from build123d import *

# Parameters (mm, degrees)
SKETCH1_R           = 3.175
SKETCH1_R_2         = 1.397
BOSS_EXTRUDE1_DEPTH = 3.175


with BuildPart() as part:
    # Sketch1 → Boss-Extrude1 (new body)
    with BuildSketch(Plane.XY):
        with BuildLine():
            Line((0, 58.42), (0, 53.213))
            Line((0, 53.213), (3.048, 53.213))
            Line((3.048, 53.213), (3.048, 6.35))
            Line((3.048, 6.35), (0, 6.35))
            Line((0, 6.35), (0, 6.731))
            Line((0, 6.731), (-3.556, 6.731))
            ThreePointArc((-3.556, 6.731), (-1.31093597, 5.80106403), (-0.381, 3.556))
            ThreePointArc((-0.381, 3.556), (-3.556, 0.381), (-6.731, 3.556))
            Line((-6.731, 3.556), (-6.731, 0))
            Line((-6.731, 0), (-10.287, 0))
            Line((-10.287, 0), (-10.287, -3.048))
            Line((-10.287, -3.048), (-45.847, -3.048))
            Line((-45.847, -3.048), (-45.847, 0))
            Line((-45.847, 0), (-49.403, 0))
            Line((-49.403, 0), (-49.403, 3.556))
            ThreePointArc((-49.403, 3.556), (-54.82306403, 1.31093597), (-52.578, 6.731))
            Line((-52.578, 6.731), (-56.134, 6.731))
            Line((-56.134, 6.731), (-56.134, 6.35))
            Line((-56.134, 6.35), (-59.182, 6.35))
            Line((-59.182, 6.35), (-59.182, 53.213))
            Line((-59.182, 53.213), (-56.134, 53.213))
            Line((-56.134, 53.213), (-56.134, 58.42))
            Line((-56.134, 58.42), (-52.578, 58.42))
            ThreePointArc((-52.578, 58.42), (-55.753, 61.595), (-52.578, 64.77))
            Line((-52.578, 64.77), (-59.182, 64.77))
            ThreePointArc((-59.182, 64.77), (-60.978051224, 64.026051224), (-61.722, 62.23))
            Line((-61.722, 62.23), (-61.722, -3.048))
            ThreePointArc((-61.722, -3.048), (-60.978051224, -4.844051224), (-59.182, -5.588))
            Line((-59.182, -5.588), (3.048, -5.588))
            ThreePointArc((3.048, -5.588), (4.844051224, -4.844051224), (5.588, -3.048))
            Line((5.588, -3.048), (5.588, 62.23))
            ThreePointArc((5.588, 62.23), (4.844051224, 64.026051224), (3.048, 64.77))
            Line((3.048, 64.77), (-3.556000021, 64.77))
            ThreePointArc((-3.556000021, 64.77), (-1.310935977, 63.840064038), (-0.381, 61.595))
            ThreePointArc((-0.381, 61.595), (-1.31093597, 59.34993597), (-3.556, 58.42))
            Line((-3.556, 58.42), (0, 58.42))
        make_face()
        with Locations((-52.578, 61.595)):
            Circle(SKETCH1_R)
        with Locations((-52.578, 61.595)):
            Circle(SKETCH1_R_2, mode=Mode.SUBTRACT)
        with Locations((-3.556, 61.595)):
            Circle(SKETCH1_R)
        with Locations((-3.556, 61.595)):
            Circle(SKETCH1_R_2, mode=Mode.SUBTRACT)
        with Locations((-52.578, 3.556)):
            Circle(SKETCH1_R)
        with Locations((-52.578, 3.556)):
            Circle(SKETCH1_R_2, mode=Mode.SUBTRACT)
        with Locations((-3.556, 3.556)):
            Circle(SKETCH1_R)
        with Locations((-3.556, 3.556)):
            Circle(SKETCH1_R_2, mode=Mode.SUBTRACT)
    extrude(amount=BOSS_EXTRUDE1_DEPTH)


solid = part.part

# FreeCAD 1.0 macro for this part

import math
import FreeCAD as App
import Part
import Sketcher
Q = App.Units.Quantity

doc = App.newDocument("Part")
body = doc.addObject("PartDesign::Body", "Body")

# Sketch on XY plane
sketch1 = doc.addObject("Sketcher::SketchObject", "Sketch")
body.addObject(sketch1)
sketch1.AttachmentSupport = (doc.XY_Plane, [""])
sketch1.MapMode = "FlatFace"
sketch1.addGeometry(Part.LineSegment(App.Vector(0, 58.42, 0), App.Vector(0, 53.213, 0)), False)
sketch1.addGeometry(Part.LineSegment(App.Vector(0, 53.213, 0), App.Vector(3.048, 53.213, 0)), False)
sketch1.addGeometry(Part.LineSegment(App.Vector(3.048, 53.213, 0), App.Vector(3.048, 6.35, 0)), False)
sketch1.addGeometry(Part.LineSegment(App.Vector(3.048, 6.35, 0), App.Vector(0, 6.35, 0)), False)
sketch1.addGeometry(Part.LineSegment(App.Vector(0, 6.35, 0), App.Vector(0, 6.731, 0)), False)
sketch1.addGeometry(Part.LineSegment(App.Vector(0, 6.731, 0), App.Vector(-3.556, 6.731, 0)), False)
sketch1.addGeometry(Part.ArcOfCircle(Part.Circle(App.Vector(-3.556, 3.556, 0), App.Vector(0, 0, 1), 3.175), math.radians(90), math.radians(180)), False)
sketch1.addGeometry(Part.LineSegment(App.Vector(-6.731, 3.556, 0), App.Vector(-6.731, 0, 0)), False)
sketch1.addGeometry(Part.LineSegment(App.Vector(-6.731, 0, 0), App.Vector(-10.287, 0, 0)), False)
sketch1.addGeometry(Part.LineSegment(App.Vector(-10.287, 0, 0), App.Vector(-10.287, -3.048, 0)), False)
sketch1.addGeometry(Part.LineSegment(App.Vector(-10.287, -3.048, 0), App.Vector(-45.847, -3.048, 0)), False)
sketch1.addGeometry(Part.LineSegment(App.Vector(-45.847, -3.048, 0), App.Vector(-45.847, 0, 0)), False)
sketch1.addGeometry(Part.LineSegment(App.Vector(-45.847, 0, 0), App.Vector(-49.403, 0, 0)), False)
sketch1.addGeometry(Part.LineSegment(App.Vector(-49.403, 0, 0), App.Vector(-49.403, 3.556, 0)), False)
sketch1.addGeometry(Part.ArcOfCircle(Part.Circle(App.Vector(-52.578, 3.556, 0), App.Vector(0, 0, 1), 3.175), math.radians(0), math.radians(90)), False)
sketch1.addGeometry(Part.LineSegment(App.Vector(-52.578, 6.731, 0), App.Vector(-56.134, 6.731, 0)), False)
sketch1.addGeometry(Part.LineSegment(App.Vector(-56.134, 6.731, 0), App.Vector(-56.134, 6.35, 0)), False)
sketch1.addGeometry(Part.LineSegment(App.Vector(-56.134, 6.35, 0), App.Vector(-59.182, 6.35, 0)), False)
sketch1.addGeometry(Part.LineSegment(App.Vector(-59.182, 6.35, 0), App.Vector(-59.182, 53.213, 0)), False)
sketch1.addGeometry(Part.LineSegment(App.Vector(-59.182, 53.213, 0), App.Vector(-56.134, 53.213, 0)), False)
sketch1.addGeometry(Part.LineSegment(App.Vector(-56.134, 53.213, 0), App.Vector(-56.134, 58.42, 0)), False)
sketch1.addGeometry(Part.LineSegment(App.Vector(-56.134, 58.42, 0), App.Vector(-52.578, 58.42, 0)), False)
sketch1.addGeometry(Part.ArcOfCircle(Part.Circle(App.Vector(-52.578, 61.595, 0), App.Vector(0, 0, 1), 3.175), math.radians(-90), math.radians(90)), False)
sketch1.addGeometry(Part.LineSegment(App.Vector(-52.578, 64.77, 0), App.Vector(-59.182, 64.77, 0)), False)
sketch1.addGeometry(Part.ArcOfCircle(Part.Circle(App.Vector(-59.182, 62.23, 0), App.Vector(0, 0, 1), 2.54), math.radians(90), math.radians(180)), False)
sketch1.addGeometry(Part.LineSegment(App.Vector(-61.722, 62.23, 0), App.Vector(-61.722, -3.048, 0)), False)
sketch1.addGeometry(Part.ArcOfCircle(Part.Circle(App.Vector(-59.182, -3.048, 0), App.Vector(0, 0, 1), 2.54), math.radians(-180), math.radians(-90)), False)
sketch1.addGeometry(Part.LineSegment(App.Vector(-59.182, -5.588, 0), App.Vector(3.048, -5.588, 0)), False)
sketch1.addGeometry(Part.ArcOfCircle(Part.Circle(App.Vector(3.048, -3.048, 0), App.Vector(0, 0, 1), 2.54), math.radians(-90), math.radians(0)), False)
sketch1.addGeometry(Part.LineSegment(App.Vector(5.588, -3.048, 0), App.Vector(5.588, 62.23, 0)), False)
sketch1.addGeometry(Part.ArcOfCircle(Part.Circle(App.Vector(3.048, 62.23, 0), App.Vector(0, 0, 1), 2.54), math.radians(0), math.radians(90)), False)
sketch1.addGeometry(Part.LineSegment(App.Vector(3.048, 64.77, 0), App.Vector(-3.556, 64.77, 0)), False)
sketch1.addGeometry(Part.ArcOfCircle(Part.Circle(App.Vector(-3.556, 61.595, 0), App.Vector(0, 0, 1), 3.175), math.radians(90), math.radians(270)), False)
sketch1.addGeometry(Part.LineSegment(App.Vector(-3.556, 58.42, 0), App.Vector(0, 58.42, 0)), False)
sketch1.addGeometry(Part.Circle(App.Vector(-52.578, 3.556, 0), App.Vector(0, 0, 1), 1.397), False)
sketch1.addGeometry(Part.Circle(App.Vector(-3.556, 3.556, 0), App.Vector(0, 0, 1), 1.397), False)
sketch1.addGeometry(Part.Circle(App.Vector(-52.578, 61.595, 0), App.Vector(0, 0, 1), 1.397), False)
sketch1.addGeometry(Part.Circle(App.Vector(-3.556, 61.595, 0), App.Vector(0, 0, 1), 1.397), False)
sketch1.addConstraint(Sketcher.Constraint("Coincident", 0, 2, 1, 1))
sketch1.addConstraint(Sketcher.Constraint("Coincident", 1, 2, 2, 1))
sketch1.addConstraint(Sketcher.Constraint("Coincident", 2, 2, 3, 1))
sketch1.addConstraint(Sketcher.Constraint("Coincident", 3, 2, 4, 1))
sketch1.addConstraint(Sketcher.Constraint("Coincident", 4, 2, 5, 1))
sketch1.addConstraint(Sketcher.Constraint("Tangent", 5, 2, 6, 1))
sketch1.addConstraint(Sketcher.Constraint("Tangent", 6, 2, 7, 1))
sketch1.addConstraint(Sketcher.Constraint("Coincident", 7, 2, 8, 1))
sketch1.addConstraint(Sketcher.Constraint("Coincident", 8, 2, 9, 1))
sketch1.addConstraint(Sketcher.Constraint("Coincident", 9, 2, 10, 1))
sketch1.addConstraint(Sketcher.Constraint("Coincident", 10, 2, 11, 1))
sketch1.addConstraint(Sketcher.Constraint("Coincident", 11, 2, 12, 1))
sketch1.addConstraint(Sketcher.Constraint("Coincident", 12, 2, 13, 1))
sketch1.addConstraint(Sketcher.Constraint("Tangent", 13, 2, 14, 1))
sketch1.addConstraint(Sketcher.Constraint("Tangent", 14, 2, 15, 1))
sketch1.addConstraint(Sketcher.Constraint("Coincident", 15, 2, 16, 1))
sketch1.addConstraint(Sketcher.Constraint("Coincident", 16, 2, 17, 1))
sketch1.addConstraint(Sketcher.Constraint("Coincident", 17, 2, 18, 1))
sketch1.addConstraint(Sketcher.Constraint("Coincident", 18, 2, 19, 1))
sketch1.addConstraint(Sketcher.Constraint("Coincident", 19, 2, 20, 1))
sketch1.addConstraint(Sketcher.Constraint("Coincident", 20, 2, 21, 1))
sketch1.addConstraint(Sketcher.Constraint("Tangent", 21, 2, 22, 1))
sketch1.addConstraint(Sketcher.Constraint("Tangent", 22, 2, 23, 1))
sketch1.addConstraint(Sketcher.Constraint("Tangent", 23, 2, 24, 1))
sketch1.addConstraint(Sketcher.Constraint("Tangent", 24, 2, 25, 1))
sketch1.addConstraint(Sketcher.Constraint("Tangent", 25, 2, 26, 1))
sketch1.addConstraint(Sketcher.Constraint("Tangent", 26, 2, 27, 1))
sketch1.addConstraint(Sketcher.Constraint("Tangent", 27, 2, 28, 1))
sketch1.addConstraint(Sketcher.Constraint("Tangent", 28, 2, 29, 1))
sketch1.addConstraint(Sketcher.Constraint("Tangent", 29, 2, 30, 1))
sketch1.addConstraint(Sketcher.Constraint("Tangent", 30, 2, 31, 1))
sketch1.addConstraint(Sketcher.Constraint("Tangent", 31, 2, 32, 1))
sketch1.addConstraint(Sketcher.Constraint("Tangent", 32, 2, 33, 1))
sketch1.addConstraint(Sketcher.Constraint("Coincident", 33, 2, 0, 1))
sketch1.addConstraint(Sketcher.Constraint("Vertical", 0))
sketch1.addConstraint(Sketcher.Constraint("Horizontal", 1))
sketch1.addConstraint(Sketcher.Constraint("Vertical", 2))
sketch1.addConstraint(Sketcher.Constraint("Horizontal", 3))
sketch1.addConstraint(Sketcher.Constraint("Vertical", 4))
sketch1.addConstraint(Sketcher.Constraint("Horizontal", 5))
sketch1.addConstraint(Sketcher.Constraint("Vertical", 7))
sketch1.addConstraint(Sketcher.Constraint("Horizontal", 8))
sketch1.addConstraint(Sketcher.Constraint("Vertical", 9))
sketch1.addConstraint(Sketcher.Constraint("Horizontal", 10))
sketch1.addConstraint(Sketcher.Constraint("Vertical", 11))
sketch1.addConstraint(Sketcher.Constraint("Horizontal", 12))
sketch1.addConstraint(Sketcher.Constraint("Vertical", 13))
sketch1.addConstraint(Sketcher.Constraint("Horizontal", 15))
sketch1.addConstraint(Sketcher.Constraint("Vertical", 16))
sketch1.addConstraint(Sketcher.Constraint("Horizontal", 17))
sketch1.addConstraint(Sketcher.Constraint("Vertical", 18))
sketch1.addConstraint(Sketcher.Constraint("Horizontal", 19))
sketch1.addConstraint(Sketcher.Constraint("Vertical", 20))
sketch1.addConstraint(Sketcher.Constraint("Horizontal", 21))
sketch1.addConstraint(Sketcher.Constraint("Horizontal", 23))
sketch1.addConstraint(Sketcher.Constraint("Vertical", 25))
sketch1.addConstraint(Sketcher.Constraint("Horizontal", 27))
sketch1.addConstraint(Sketcher.Constraint("Vertical", 29))
sketch1.addConstraint(Sketcher.Constraint("Horizontal", 31))
sketch1.addConstraint(Sketcher.Constraint("Horizontal", 33))
sketch1.addConstraint(Sketcher.Constraint("Coincident", 34, 3, 14, 3))
sketch1.addConstraint(Sketcher.Constraint("Coincident", 35, 3, 6, 3))
sketch1.addConstraint(Sketcher.Constraint("Coincident", 36, 3, 22, 3))
sketch1.addConstraint(Sketcher.Constraint("Coincident", 37, 3, 32, 3))
sketch1.addConstraint(Sketcher.Constraint("Equal", 6, 14))
sketch1.addConstraint(Sketcher.Constraint("Equal", 14, 22))
sketch1.addConstraint(Sketcher.Constraint("Equal", 24, 26))
sketch1.addConstraint(Sketcher.Constraint("Equal", 26, 28))
sketch1.addConstraint(Sketcher.Constraint("Equal", 28, 30))
sketch1.addConstraint(Sketcher.Constraint("Equal", 22, 32))
sketch1.addConstraint(Sketcher.Constraint("Equal", 34, 35))
sketch1.addConstraint(Sketcher.Constraint("Equal", 35, 36))
sketch1.addConstraint(Sketcher.Constraint("Equal", 36, 37))
sketch1.addConstraint(Sketcher.Constraint("PointOnObject", 0, 2, -2))
sketch1.addConstraint(Sketcher.Constraint("PointOnObject", 3, 2, -2))
sketch1.addConstraint(Sketcher.Constraint("PointOnObject", 7, 2, -1))
sketch1.addConstraint(Sketcher.Constraint("PointOnObject", 11, 2, -1))
sketch1.addConstraint(Sketcher.Constraint("Horizontal", 6, 3, 14, 3))
sketch1.addConstraint(Sketcher.Constraint("Horizontal", 24, 3, 30, 3))
sketch1.addConstraint(Sketcher.Constraint("Horizontal", 28, 3, 9, 2))
sketch1.addConstraint(Sketcher.Constraint("Horizontal", 3, 2, 16, 2))
sketch1.addConstraint(Sketcher.Constraint("Horizontal", 1, 2, 18, 2))
sketch1.addConstraint(Sketcher.Constraint("Vertical", 14, 3, 22, 3))
sketch1.addConstraint(Sketcher.Constraint("Vertical", 6, 3, 32, 3))
sketch1.addConstraint(Sketcher.Constraint("Vertical", 30, 3, 1, 2))
sketch1.addConstraint(Sketcher.Constraint("Vertical", 26, 3, 17, 2))
sketch1.addConstraint(Sketcher.Constraint("Vertical", 16, 2, 19, 2))
sketch1.addConstraint(Sketcher.Constraint("Equal", 5, 8))
sketch1.addConstraint(Sketcher.Constraint("Equal", 8, 12))
sketch1.addConstraint(Sketcher.Constraint("Equal", 12, 15))
sketch1.addConstraint(Sketcher.Constraint("Equal", 3, 17))
sketch1.addConstraint(Sketcher.Constraint("Equal", 33, 7))
sketch1.addConstraint(Sketcher.Constraint("Equal", 19, 9))
sketch1.addConstraint(Sketcher.Constraint("Radius", 24, Q("0.1 in")))
sketch1.addConstraint(Sketcher.Constraint("Diameter", 34, Q("0.11 in")))
sketch1.addConstraint(Sketcher.Constraint("DistanceX", 10, 2, 10, 1, Q("1.4 in")))
sketch1.addConstraint(Sketcher.Constraint("Radius", 6, Q("0.125 in")))
sketch1.addConstraint(Sketcher.Constraint("DistanceX", 1, 1, 1, 2, Q("0.12 in")))
sketch1.addConstraint(Sketcher.Constraint("DistanceX", 5, 2, 5, 1, Q("0.14 in")))
sketch1.addConstraint(Sketcher.Constraint("DistanceY", 25, 2, 25, 1, Q("2.57 in")))
sketch1.addConstraint(Sketcher.Constraint("DistanceY", 0, 2, 0, 1, Q("0.205 in")))
sketch1.addConstraint(Sketcher.Constraint("DistanceY", 2, 2, 2, 1, Q("1.845 in")))
pad1 = doc.addObject("PartDesign::Pad", "Pad")
body.addObject(pad1)
pad1.Profile = sketch1
pad1.Length = Q("0.125 in")

doc.recompute()
